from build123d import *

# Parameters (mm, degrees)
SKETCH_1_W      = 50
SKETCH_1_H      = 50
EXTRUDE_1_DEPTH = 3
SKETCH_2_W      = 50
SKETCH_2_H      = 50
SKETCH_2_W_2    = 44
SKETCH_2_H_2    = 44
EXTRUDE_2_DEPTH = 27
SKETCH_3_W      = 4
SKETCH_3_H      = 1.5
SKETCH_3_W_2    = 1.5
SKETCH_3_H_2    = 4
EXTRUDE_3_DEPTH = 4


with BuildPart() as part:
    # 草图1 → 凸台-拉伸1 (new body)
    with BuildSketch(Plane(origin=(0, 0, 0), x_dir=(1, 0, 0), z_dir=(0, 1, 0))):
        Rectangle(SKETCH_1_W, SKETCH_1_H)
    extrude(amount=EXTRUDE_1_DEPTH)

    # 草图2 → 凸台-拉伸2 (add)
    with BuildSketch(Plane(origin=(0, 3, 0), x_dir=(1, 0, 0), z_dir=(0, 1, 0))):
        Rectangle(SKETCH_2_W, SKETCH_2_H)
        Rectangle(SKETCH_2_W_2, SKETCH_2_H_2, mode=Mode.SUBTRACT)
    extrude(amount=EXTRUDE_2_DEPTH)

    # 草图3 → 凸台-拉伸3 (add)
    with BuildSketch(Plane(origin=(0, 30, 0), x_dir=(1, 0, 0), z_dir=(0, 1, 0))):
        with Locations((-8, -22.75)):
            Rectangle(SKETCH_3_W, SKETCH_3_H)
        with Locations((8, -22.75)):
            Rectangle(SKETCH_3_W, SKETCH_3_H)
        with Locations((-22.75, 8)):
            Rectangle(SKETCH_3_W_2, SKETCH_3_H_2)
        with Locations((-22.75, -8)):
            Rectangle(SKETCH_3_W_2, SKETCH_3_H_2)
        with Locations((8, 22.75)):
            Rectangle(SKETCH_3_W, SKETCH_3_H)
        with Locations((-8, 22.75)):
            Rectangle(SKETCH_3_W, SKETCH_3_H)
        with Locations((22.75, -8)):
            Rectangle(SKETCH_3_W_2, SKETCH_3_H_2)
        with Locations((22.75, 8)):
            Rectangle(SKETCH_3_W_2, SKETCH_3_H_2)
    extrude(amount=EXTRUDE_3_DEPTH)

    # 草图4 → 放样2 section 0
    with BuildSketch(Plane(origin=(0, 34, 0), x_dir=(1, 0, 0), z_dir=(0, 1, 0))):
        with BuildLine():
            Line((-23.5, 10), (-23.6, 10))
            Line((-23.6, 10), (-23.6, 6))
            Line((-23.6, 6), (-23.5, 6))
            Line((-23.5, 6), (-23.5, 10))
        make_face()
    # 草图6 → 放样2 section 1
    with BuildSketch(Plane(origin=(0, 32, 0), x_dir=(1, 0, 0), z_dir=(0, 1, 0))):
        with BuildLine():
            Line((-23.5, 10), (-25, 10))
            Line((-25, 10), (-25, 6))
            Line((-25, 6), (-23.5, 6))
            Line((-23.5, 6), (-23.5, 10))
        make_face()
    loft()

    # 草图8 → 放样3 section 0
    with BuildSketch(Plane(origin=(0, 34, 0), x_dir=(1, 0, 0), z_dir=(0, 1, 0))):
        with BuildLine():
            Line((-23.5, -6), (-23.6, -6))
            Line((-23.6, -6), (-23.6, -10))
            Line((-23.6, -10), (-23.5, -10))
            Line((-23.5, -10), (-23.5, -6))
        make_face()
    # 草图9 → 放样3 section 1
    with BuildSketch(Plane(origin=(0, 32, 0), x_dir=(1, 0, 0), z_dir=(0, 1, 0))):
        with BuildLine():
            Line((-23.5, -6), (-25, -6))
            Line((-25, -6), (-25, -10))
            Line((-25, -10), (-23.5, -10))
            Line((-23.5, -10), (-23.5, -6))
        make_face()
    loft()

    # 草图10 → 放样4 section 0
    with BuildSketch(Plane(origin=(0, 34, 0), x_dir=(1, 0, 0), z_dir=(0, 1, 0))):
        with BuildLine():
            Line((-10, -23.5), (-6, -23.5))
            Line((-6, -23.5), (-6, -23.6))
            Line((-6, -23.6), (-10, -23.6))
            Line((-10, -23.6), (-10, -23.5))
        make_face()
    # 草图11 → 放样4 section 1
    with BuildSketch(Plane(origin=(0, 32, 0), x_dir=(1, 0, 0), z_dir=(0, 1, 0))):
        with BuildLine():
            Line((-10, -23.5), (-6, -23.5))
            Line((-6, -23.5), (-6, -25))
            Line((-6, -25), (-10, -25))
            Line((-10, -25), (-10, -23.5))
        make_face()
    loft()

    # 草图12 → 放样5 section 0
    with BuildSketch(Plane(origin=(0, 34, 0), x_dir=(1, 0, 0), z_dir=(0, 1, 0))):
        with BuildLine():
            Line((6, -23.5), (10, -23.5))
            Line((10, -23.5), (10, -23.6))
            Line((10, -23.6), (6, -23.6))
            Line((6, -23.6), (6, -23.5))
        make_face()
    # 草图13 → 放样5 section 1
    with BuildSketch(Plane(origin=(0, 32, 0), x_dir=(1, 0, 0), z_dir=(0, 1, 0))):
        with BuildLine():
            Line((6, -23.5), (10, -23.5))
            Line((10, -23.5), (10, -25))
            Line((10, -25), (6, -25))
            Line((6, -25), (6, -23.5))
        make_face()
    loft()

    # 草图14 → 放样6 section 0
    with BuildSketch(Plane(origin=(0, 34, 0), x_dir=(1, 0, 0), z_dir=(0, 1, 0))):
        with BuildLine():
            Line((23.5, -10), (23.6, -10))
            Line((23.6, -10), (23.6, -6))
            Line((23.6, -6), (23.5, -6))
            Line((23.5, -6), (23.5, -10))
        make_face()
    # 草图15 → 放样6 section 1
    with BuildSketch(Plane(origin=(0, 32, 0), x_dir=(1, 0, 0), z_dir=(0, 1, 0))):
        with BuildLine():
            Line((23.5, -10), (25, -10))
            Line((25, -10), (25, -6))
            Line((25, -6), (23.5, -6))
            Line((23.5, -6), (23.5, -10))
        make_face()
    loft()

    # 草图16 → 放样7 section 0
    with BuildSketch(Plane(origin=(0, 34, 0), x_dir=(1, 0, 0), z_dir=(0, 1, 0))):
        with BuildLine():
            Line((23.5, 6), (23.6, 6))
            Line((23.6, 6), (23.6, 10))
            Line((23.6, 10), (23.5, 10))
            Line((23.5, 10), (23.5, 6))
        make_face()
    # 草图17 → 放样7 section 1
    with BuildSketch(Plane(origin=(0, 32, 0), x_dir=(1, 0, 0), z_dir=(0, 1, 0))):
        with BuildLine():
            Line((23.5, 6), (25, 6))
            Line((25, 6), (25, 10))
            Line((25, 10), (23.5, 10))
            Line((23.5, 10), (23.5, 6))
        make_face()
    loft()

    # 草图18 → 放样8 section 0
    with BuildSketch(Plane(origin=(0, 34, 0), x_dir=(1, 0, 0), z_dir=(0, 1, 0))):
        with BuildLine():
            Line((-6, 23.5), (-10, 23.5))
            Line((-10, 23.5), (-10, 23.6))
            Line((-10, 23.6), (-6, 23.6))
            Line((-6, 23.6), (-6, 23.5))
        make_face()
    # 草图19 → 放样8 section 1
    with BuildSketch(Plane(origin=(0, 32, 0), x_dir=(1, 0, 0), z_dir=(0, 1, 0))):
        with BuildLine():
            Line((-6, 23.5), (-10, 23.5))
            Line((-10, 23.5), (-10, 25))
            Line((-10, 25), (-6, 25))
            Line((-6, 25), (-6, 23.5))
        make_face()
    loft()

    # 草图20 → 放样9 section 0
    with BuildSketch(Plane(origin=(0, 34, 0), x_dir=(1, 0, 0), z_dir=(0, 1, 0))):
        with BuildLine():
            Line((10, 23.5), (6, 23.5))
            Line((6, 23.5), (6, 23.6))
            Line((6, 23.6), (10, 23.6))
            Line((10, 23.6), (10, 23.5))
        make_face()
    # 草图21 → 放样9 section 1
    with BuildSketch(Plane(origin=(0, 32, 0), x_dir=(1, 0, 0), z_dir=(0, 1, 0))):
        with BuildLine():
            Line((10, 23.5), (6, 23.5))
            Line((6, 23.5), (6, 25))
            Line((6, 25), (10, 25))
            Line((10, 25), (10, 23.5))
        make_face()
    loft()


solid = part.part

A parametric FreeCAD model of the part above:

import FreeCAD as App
import Part
import Sketcher

V = App.Vector
Q = App.Units.Quantity


def add_polygon(sketch, points):
    """Adds a closed chain of lines whose ends are joined by coincident constraints."""
    first, n = sketch.GeometryCount, len(points)
    for a, b in zip(points, points[1:] + points[:1]):
        sketch.addGeometry(Part.LineSegment(App.Vector(*a, 0), App.Vector(*b, 0)), False)
    for i in range(n):
        sketch.addConstraint(Sketcher.Constraint("Coincident", first + i, 2, first + (i + 1) % n, 1))

doc = App.newDocument("Part")
body = doc.addObject("PartDesign::Body", "Body")

sketch1 = body.newObject("Sketcher::SketchObject", "Sketch")
sketch1.AttachmentSupport = (doc.getObject("XZ_Plane"), [""])
sketch1.MapMode = "FlatFace"
add_polygon(sketch1, [(-25, -25), (-25, 25), (25, 25), (25, -25)])
sketch1.addConstraint([
    Sketcher.Constraint("Vertical", 0),
    Sketcher.Constraint("Horizontal", 1),
    Sketcher.Constraint("Vertical", 2),
    Sketcher.Constraint("Horizontal", 3),
    Sketcher.Constraint("Symmetric", 0, 2, 2, 2, -1, 1),
    Sketcher.Constraint("Equal", 3, 0),
    Sketcher.Constraint("DistanceX", 1, 1, 1, 2, Q("50 mm")),
])
pad1 = body.newObject("PartDesign::Pad", "Pad")
pad1.Profile = sketch1
pad1.Length = 3
pad1.Reversed = True

sketch2 = body.newObject("Sketcher::SketchObject", "Sketch001")
sketch2.AttachmentSupport = (doc.getObject("XZ_Plane"), [""])
sketch2.MapMode = "FlatFace"
sketch2.AttachmentOffset = App.Placement(V(0, 0, -3), App.Rotation())
add_polygon(sketch2, [(-25, -25), (-25, 25), (25, 25), (25, -25)])
add_polygon(sketch2, [(22, 22), (-22, 22), (-22, -22), (22, -22)])
sketch2.addConstraint([
    Sketcher.Constraint("Vertical", 0),
    Sketcher.Constraint("Horizontal", 1),
    Sketcher.Constraint("Vertical", 2),
    Sketcher.Constraint("Horizontal", 3),
    Sketcher.Constraint("Horizontal", 4),
    Sketcher.Constraint("Vertical", 5),
    Sketcher.Constraint("Horizontal", 6),
    Sketcher.Constraint("Vertical", 7),
    Sketcher.Constraint("Symmetric", 0, 2, 2, 2, -1, 1),
    Sketcher.Constraint("Symmetric", 4, 2, 6, 2, -1, 1),
    Sketcher.Constraint("Equal", 3, 0),
    Sketcher.Constraint("Equal", 6, 5),
    Sketcher.Constraint("DistanceX", 1, 1, 1, 2, Q("50 mm")),
    Sketcher.Constraint("DistanceX", 4, 2, 4, 1, Q("44 mm")),
])
pad2 = body.newObject("PartDesign::Pad", "Pad001")
pad2.Profile = sketch2
pad2.Length = 27
pad2.Reversed = True

sketch3 = body.newObject("Sketcher::SketchObject", "Sketch002")
sketch3.AttachmentSupport = (doc.getObject("XZ_Plane"), [""])
sketch3.MapMode = "FlatFace"
sketch3.AttachmentOffset = App.Placement(V(0, 0, -30), App.Rotation())
add_polygon(sketch3, [(-10, 22), (-10, 23.5), (-6, 23.5), (-6, 22)])
add_polygon(sketch3, [(6, 22), (6, 23.5), (10, 23.5), (10, 22)])
add_polygon(sketch3, [(-23.5, -10), (-23.5, -6), (-22, -6), (-22, -10)])
add_polygon(sketch3, [(-23.5, 6), (-23.5, 10), (-22, 10), (-22, 6)])
add_polygon(sketch3, [(6, -23.5), (6, -22), (10, -22), (10, -23.5)])
add_polygon(sketch3, [(-10, -23.5), (-10, -22), (-6, -22), (-6, -23.5)])
add_polygon(sketch3, [(22, 6), (22, 10), (23.5, 10), (23.5, 6)])
add_polygon(sketch3, [(22, -10), (22, -6), (23.5, -6), (23.5, -10)])
sketch3.addConstraint([
    Sketcher.Constraint("Vertical", 0),
    Sketcher.Constraint("Horizontal", 1),
    Sketcher.Constraint("Vertical", 2),
    Sketcher.Constraint("Horizontal", 3),
    Sketcher.Constraint("Vertical", 4),
    Sketcher.Constraint("Horizontal", 5),
    Sketcher.Constraint("Vertical", 6),
    Sketcher.Constraint("Horizontal", 7),
    Sketcher.Constraint("Vertical", 8),
    Sketcher.Constraint("Horizontal", 9),
    Sketcher.Constraint("Vertical", 10),
    Sketcher.Constraint("Horizontal", 11),
    Sketcher.Constraint("Vertical", 12),
    Sketcher.Constraint("Horizontal", 13),
    Sketcher.Constraint("Vertical", 14),
    Sketcher.Constraint("Horizontal", 15),
    Sketcher.Constraint("Vertical", 16),
    Sketcher.Constraint("Horizontal", 17),
    Sketcher.Constraint("Vertical", 18),
    Sketcher.Constraint("Horizontal", 19),
    Sketcher.Constraint("Vertical", 20),
    Sketcher.Constraint("Horizontal", 21),
    Sketcher.Constraint("Vertical", 22),
    Sketcher.Constraint("Horizontal", 23),
    Sketcher.Constraint("Vertical", 24),
    Sketcher.Constraint("Horizontal", 25),
    Sketcher.Constraint("Vertical", 26),
    Sketcher.Constraint("Horizontal", 27),
    Sketcher.Constraint("Vertical", 28),
    Sketcher.Constraint("Horizontal", 29),
    Sketcher.Constraint("Vertical", 30),
    Sketcher.Constraint("Horizontal", 31),
    Sketcher.Constraint("Symmetric", 2, 2, 16, 2, -1, 1),
    Sketcher.Constraint("Symmetric", 0, 2, 18, 2, -1, 1),
    Sketcher.Constraint("Symmetric", 6, 2, 20, 2, -1, 1),
    Sketcher.Constraint("Symmetric", 4, 2, 22, 2, -1, 1),
    Sketcher.Constraint("Symmetric", 10, 2, 24, 2, -1, 1),
    Sketcher.Constraint("Symmetric", 8, 2, 26, 2, -1, 1),
    Sketcher.Constraint("Symmetric", 14, 2, 28, 2, -1, 1),
    Sketcher.Constraint("Symmetric", 12, 2, 30, 2, -1, 1),
    Sketcher.Constraint("Symmetric", 1, 2, 4, 2, -2),
    Sketcher.Constraint("Symmetric", 3, 2, 6, 2, -2),
    Sketcher.Constraint("Symmetric", 13, 2, 24, 2, -2),
    Sketcher.Constraint("Symmetric", 15, 2, 26, 2, -2),
    Sketcher.Constraint("Equal", 31, 0),
    Sketcher.Constraint("Equal", 23, 8),
    Sketcher.Constraint("DistanceX", 1, 1, 1, 2, Q("4 mm")),
    Sketcher.Constraint("DistanceX", 9, 1, 9, 2, Q("1.5 mm")),
    Sketcher.Constraint("DistanceX", 0, 2, -1, 1, Q("10 mm")),
    Sketcher.Constraint("DistanceY", -1, 1, 2, 2, Q("22 mm")),
    Sketcher.Constraint("DistanceY", 8, 2, -1, 1, Q("6 mm")),
    Sketcher.Constraint("DistanceX", 9, 2, -1, 1, Q("22 mm")),
])
pad3 = body.newObject("PartDesign::Pad", "Pad002")
pad3.Profile = sketch3
pad3.Length = 4
pad3.Reversed = True

sketch4 = body.newObject("Sketcher::SketchObject", "Sketch003")
sketch4.AttachmentSupport = (doc.getObject("XZ_Plane"), [""])
sketch4.MapMode = "FlatFace"
sketch4.AttachmentOffset = App.Placement(V(0, 0, -34), App.Rotation())
add_polygon(sketch4, [(-23.5, -10), (-23.6, -10), (-23.6, -6), (-23.5, -6)])
sketch4.addConstraint([
    Sketcher.Constraint("Horizontal", 0),
    Sketcher.Constraint("Vertical", 1),
    Sketcher.Constraint("Horizontal", 2),
    Sketcher.Constraint("Vertical", 3),
    Sketcher.Constraint("DistanceY", 1, 1, 1, 2, Q("4 mm")),
    Sketcher.Constraint("DistanceX", 0, 2, 0, 1, Q("0.1 mm")),
    Sketcher.Constraint("DistanceY", 0, 2, -1, 1, Q("10 mm")),
    Sketcher.Constraint("DistanceX", 0, 2, -1, 1, Q("23.6 mm")),
])

sketch5 = body.newObject("Sketcher::SketchObject", "Sketch004")
sketch5.AttachmentSupport = (doc.getObject("XZ_Plane"), [""])
sketch5.MapMode = "FlatFace"
sketch5.AttachmentOffset = App.Placement(V(0, 0, -32), App.Rotation())
add_polygon(sketch5, [(-23.5, -10), (-25, -10), (-25, -6), (-23.5, -6)])
sketch5.addConstraint([
    Sketcher.Constraint("Horizontal", 0),
    Sketcher.Constraint("Vertical", 1),
    Sketcher.Constraint("Horizontal", 2),
    Sketcher.Constraint("Vertical", 3),
    Sketcher.Constraint("DistanceY", 1, 1, 1, 2, Q("4 mm")),
    Sketcher.Constraint("DistanceX", 0, 2, 0, 1, Q("1.5 mm")),
    Sketcher.Constraint("DistanceX", 0, 2, -1, 1, Q("25 mm")),
    Sketcher.Constraint("DistanceY", 0, 2, -1, 1, Q("10 mm")),
])

additiveloft = body.newObject("PartDesign::AdditiveLoft", "AdditiveLoft")
additiveloft.Profile = sketch4
additiveloft.Sections = [sketch5]

sketch6 = body.newObject("Sketcher::SketchObject", "Sketch005")
sketch6.AttachmentSupport = (doc.getObject("XZ_Plane"), [""])
sketch6.MapMode = "FlatFace"
sketch6.AttachmentOffset = App.Placement(V(0, 0, -34), App.Rotation())
add_polygon(sketch6, [(-23.5, 6), (-23.6, 6), (-23.6, 10), (-23.5, 10)])
sketch6.addConstraint([
    Sketcher.Constraint("Horizontal", 0),
    Sketcher.Constraint("Vertical", 1),
    Sketcher.Constraint("Horizontal", 2),
    Sketcher.Constraint("Vertical", 3),
    Sketcher.Constraint("DistanceY", 1, 1, 1, 2, Q("4 mm")),
    Sketcher.Constraint("DistanceX", 0, 2, 0, 1, Q("0.1 mm")),
    Sketcher.Constraint("DistanceY", -1, 1, 0, 2, Q("6 mm")),
    Sketcher.Constraint("DistanceX", 0, 2, -1, 1, Q("23.6 mm")),
])

sketch7 = body.newObject("Sketcher::SketchObject", "Sketch006")
sketch7.AttachmentSupport = (doc.getObject("XZ_Plane"), [""])
sketch7.MapMode = "FlatFace"
sketch7.AttachmentOffset = App.Placement(V(0, 0, -32), App.Rotation())
add_polygon(sketch7, [(-23.5, 6), (-25, 6), (-25, 10), (-23.5, 10)])
sketch7.addConstraint([
    Sketcher.Constraint("Horizontal", 0),
    Sketcher.Constraint("Vertical", 1),
    Sketcher.Constraint("Horizontal", 2),
    Sketcher.Constraint("Vertical", 3),
    Sketcher.Constraint("DistanceY", 1, 1, 1, 2, Q("4 mm")),
    Sketcher.Constraint("DistanceX", 0, 2, 0, 1, Q("1.5 mm")),
    Sketcher.Constraint("DistanceX", 0, 2, -1, 1, Q("25 mm")),
    Sketcher.Constraint("DistanceY", -1, 1, 0, 2, Q("6 mm")),
])

additiveloft2 = body.newObject("PartDesign::AdditiveLoft", "AdditiveLoft001")
additiveloft2.Profile = sketch6
additiveloft2.Sections = [sketch7]

sketch8 = body.newObject("Sketcher::SketchObject", "Sketch007")
sketch8.AttachmentSupport = (doc.getObject("XZ_Plane"), [""])
sketch8.MapMode = "FlatFace"
sketch8.AttachmentOffset = App.Placement(V(0, 0, -34), App.Rotation())
add_polygon(sketch8, [(-6, 23.5), (-10, 23.5), (-10, 23.6), (-6, 23.6)])
sketch8.addConstraint([
    Sketcher.Constraint("Horizontal", 0),
    Sketcher.Constraint("Vertical", 1),
    Sketcher.Constraint("Horizontal", 2),
    Sketcher.Constraint("Vertical", 3),
    Sketcher.Constraint("DistanceX", 0, 2, 0, 1, Q("4 mm")),
    Sketcher.Constraint("DistanceY", 1, 1, 1, 2, Q("0.1 mm")),
    Sketcher.Constraint("DistanceX", 0, 2, -1, 1, Q("10 mm")),
    Sketcher.Constraint("DistanceY", -1, 1, 0, 2, Q("23.5 mm")),
])

sketch9 = body.newObject("Sketcher::SketchObject", "Sketch008")
sketch9.AttachmentSupport = (doc.getObject("XZ_Plane"), [""])
sketch9.MapMode = "FlatFace"
sketch9.AttachmentOffset = App.Placement(V(0, 0, -32), App.Rotation())
add_polygon(sketch9, [(-6, 23.5), (-10, 23.5), (-10, 25), (-6, 25)])
sketch9.addConstraint([
    Sketcher.Constraint("Horizontal", 0),
    Sketcher.Constraint("Vertical", 1),
    Sketcher.Constraint("Horizontal", 2),
    Sketcher.Constraint("Vertical", 3),
    Sketcher.Constraint("DistanceX", 0, 2, 0, 1, Q("4 mm")),
    Sketcher.Constraint("DistanceY", 1, 1, 1, 2, Q("1.5 mm")),
    Sketcher.Constraint("DistanceX", 0, 2, -1, 1, Q("10 mm")),
    Sketcher.Constraint("DistanceY", -1, 1, 1, 2, Q("25 mm")),
])

additiveloft3 = body.newObject("PartDesign::AdditiveLoft", "AdditiveLoft002")
additiveloft3.Profile = sketch8
additiveloft3.Sections = [sketch9]

sketch10 = body.newObject("Sketcher::SketchObject", "Sketch009")
sketch10.AttachmentSupport = (doc.getObject("XZ_Plane"), [""])
sketch10.MapMode = "FlatFace"
sketch10.AttachmentOffset = App.Placement(V(0, 0, -34), App.Rotation())
add_polygon(sketch10, [(10, 23.5), (6, 23.5), (6, 23.6), (10, 23.6)])
sketch10.addConstraint([
    Sketcher.Constraint("Horizontal", 0),
    Sketcher.Constraint("Vertical", 1),
    Sketcher.Constraint("Horizontal", 2),
    Sketcher.Constraint("Vertical", 3),
    Sketcher.Constraint("DistanceX", 0, 2, 0, 1, Q("4 mm")),
    Sketcher.Constraint("DistanceY", 1, 1, 1, 2, Q("0.1 mm")),
    Sketcher.Constraint("DistanceX", -1, 1, 0, 2, Q("6 mm")),
    Sketcher.Constraint("DistanceY", -1, 1, 0, 2, Q("23.5 mm")),
])

sketch11 = body.newObject("Sketcher::SketchObject", "Sketch010")
sketch11.AttachmentSupport = (doc.getObject("XZ_Plane"), [""])
sketch11.MapMode = "FlatFace"
sketch11.AttachmentOffset = App.Placement(V(0, 0, -32), App.Rotation())
add_polygon(sketch11, [(10, 23.5), (6, 23.5), (6, 25), (10, 25)])
sketch11.addConstraint([
    Sketcher.Constraint("Horizontal", 0),
    Sketcher.Constraint("Vertical", 1),
    Sketcher.Constraint("Horizontal", 2),
    Sketcher.Constraint("Vertical", 3),
    Sketcher.Constraint("DistanceX", 0, 2, 0, 1, Q("4 mm")),
    Sketcher.Constraint("DistanceY", 1, 1, 1, 2, Q("1.5 mm")),
    Sketcher.Constraint("DistanceX", -1, 1, 0, 2, Q("6 mm")),
    Sketcher.Constraint("DistanceY", -1, 1, 1, 2, Q("25 mm")),
])

additiveloft4 = body.newObject("PartDesign::AdditiveLoft", "AdditiveLoft003")
additiveloft4.Profile = sketch10
additiveloft4.Sections = [sketch11]

sketch12 = body.newObject("Sketcher::SketchObject", "Sketch011")
sketch12.AttachmentSupport = (doc.getObject("XZ_Plane"), [""])
sketch12.MapMode = "FlatFace"
sketch12.AttachmentOffset = App.Placement(V(0, 0, -34), App.Rotation())
add_polygon(sketch12, [(23.5, 10), (23.6, 10), (23.6, 6), (23.5, 6)])
sketch12.addConstraint([
    Sketcher.Constraint("Horizontal", 0),
    Sketcher.Constraint("Vertical", 1),
    Sketcher.Constraint("Horizontal", 2),
    Sketcher.Constraint("Vertical", 3),
    Sketcher.Constraint("DistanceY", 1, 2, 1, 1, Q("4 mm")),
    Sketcher.Constraint("DistanceX", 0, 1, 0, 2, Q("0.1 mm")),
    Sketcher.Constraint("DistanceY", -1, 1, 0, 2, Q("10 mm")),
    Sketcher.Constraint("DistanceX", -1, 1, 0, 2, Q("23.6 mm")),
])

sketch13 = body.newObject("Sketcher::SketchObject", "Sketch012")
sketch13.AttachmentSupport = (doc.getObject("XZ_Plane"), [""])
sketch13.MapMode = "FlatFace"
sketch13.AttachmentOffset = App.Placement(V(0, 0, -32), App.Rotation())
add_polygon(sketch13, [(23.5, 10), (25, 10), (25, 6), (23.5, 6)])
sketch13.addConstraint([
    Sketcher.Constraint("Horizontal", 0),
    Sketcher.Constraint("Vertical", 1),
    Sketcher.Constraint("Horizontal", 2),
    Sketcher.Constraint("Vertical", 3),
    Sketcher.Constraint("DistanceY", 1, 2, 1, 1, Q("4 mm")),
    Sketcher.Constraint("DistanceX", 0, 1, 0, 2, Q("1.5 mm")),
    Sketcher.Constraint("DistanceX", -1, 1, 0, 2, Q("25 mm")),
    Sketcher.Constraint("DistanceY", -1, 1, 0, 2, Q("10 mm")),
])

additiveloft5 = body.newObject("PartDesign::AdditiveLoft", "AdditiveLoft004")
additiveloft5.Profile = sketch12
additiveloft5.Sections = [sketch13]

sketch14 = body.newObject("Sketcher::SketchObject", "Sketch013")
sketch14.AttachmentSupport = (doc.getObject("XZ_Plane"), [""])
sketch14.MapMode = "FlatFace"
sketch14.AttachmentOffset = App.Placement(V(0, 0, -34), App.Rotation())
add_polygon(sketch14, [(23.5, -6), (23.6, -6), (23.6, -10), (23.5, -10)])
sketch14.addConstraint([
    Sketcher.Constraint("Horizontal", 0),
    Sketcher.Constraint("Vertical", 1),
    Sketcher.Constraint("Horizontal", 2),
    Sketcher.Constraint("Vertical", 3),
    Sketcher.Constraint("DistanceY", 1, 2, 1, 1, Q("4 mm")),
    Sketcher.Constraint("DistanceX", 0, 1, 0, 2, Q("0.1 mm")),
    Sketcher.Constraint("DistanceY", 0, 2, -1, 1, Q("6 mm")),
    Sketcher.Constraint("DistanceX", -1, 1, 0, 2, Q("23.6 mm")),
])

sketch15 = body.newObject("Sketcher::SketchObject", "Sketch014")
sketch15.AttachmentSupport = (doc.getObject("XZ_Plane"), [""])
sketch15.MapMode = "FlatFace"
sketch15.AttachmentOffset = App.Placement(V(0, 0, -32), App.Rotation())
add_polygon(sketch15, [(23.5, -6), (25, -6), (25, -10), (23.5, -10)])
sketch15.addConstraint([
    Sketcher.Constraint("Horizontal", 0),
    Sketcher.Constraint("Vertical", 1),
    Sketcher.Constraint("Horizontal", 2),
    Sketcher.Constraint("Vertical", 3),
    Sketcher.Constraint("DistanceY", 1, 2, 1, 1, Q("4 mm")),
    Sketcher.Constraint("DistanceX", 0, 1, 0, 2, Q("1.5 mm")),
    Sketcher.Constraint("DistanceX", -1, 1, 0, 2, Q("25 mm")),
    Sketcher.Constraint("DistanceY", 0, 2, -1, 1, Q("6 mm")),
])

additiveloft6 = body.newObject("PartDesign::AdditiveLoft", "AdditiveLoft005")
additiveloft6.Profile = sketch14
additiveloft6.Sections = [sketch15]

sketch16 = body.newObject("Sketcher::SketchObject", "Sketch015")
sketch16.AttachmentSupport = (doc.getObject("XZ_Plane"), [""])
sketch16.MapMode = "FlatFace"
sketch16.AttachmentOffset = App.Placement(V(0, 0, -34), App.Rotation())
add_polygon(sketch16, [(-10, -23.5), (-6, -23.5), (-6, -23.6), (-10, -23.6)])
sketch16.addConstraint([
    Sketcher.Constraint("Horizontal", 0),
    Sketcher.Constraint("Vertical", 1),
    Sketcher.Constraint("Horizontal", 2),
    Sketcher.Constraint("Vertical", 3),
    Sketcher.Constraint("DistanceX", 0, 1, 0, 2, Q("4 mm")),
    Sketcher.Constraint("DistanceY", 1, 2, 1, 1, Q("0.1 mm")),
    Sketcher.Constraint("DistanceX", 0, 2, -1, 1, Q("6 mm")),
    Sketcher.Constraint("DistanceY", 0, 2, -1, 1, Q("23.5 mm")),
])

sketch17 = body.newObject("Sketcher::SketchObject", "Sketch016")
sketch17.AttachmentSupport = (doc.getObject("XZ_Plane"), [""])
sketch17.MapMode = "FlatFace"
sketch17.AttachmentOffset = App.Placement(V(0, 0, -32), App.Rotation())
add_polygon(sketch17, [(-10, -23.5), (-6, -23.5), (-6, -25), (-10, -25)])
sketch17.addConstraint([
    Sketcher.Constraint("Horizontal", 0),
    Sketcher.Constraint("Vertical", 1),
    Sketcher.Constraint("Horizontal", 2),
    Sketcher.Constraint("Vertical", 3),
    Sketcher.Constraint("DistanceX", 0, 1, 0, 2, Q("4 mm")),
    Sketcher.Constraint("DistanceY", 1, 2, 1, 1, Q("1.5 mm")),
    Sketcher.Constraint("DistanceX", 0, 2, -1, 1, Q("6 mm")),
    Sketcher.Constraint("DistanceY", 1, 2, -1, 1, Q("25 mm")),
])

additiveloft7 = body.newObject("PartDesign::AdditiveLoft", "AdditiveLoft006")
additiveloft7.Profile = sketch16
additiveloft7.Sections = [sketch17]

sketch18 = body.newObject("Sketcher::SketchObject", "Sketch017")
sketch18.AttachmentSupport = (doc.getObject("XZ_Plane"), [""])
sketch18.MapMode = "FlatFace"
sketch18.AttachmentOffset = App.Placement(V(0, 0, -34), App.Rotation())
add_polygon(sketch18, [(6, -23.5), (10, -23.5), (10, -23.6), (6, -23.6)])
sketch18.addConstraint([
    Sketcher.Constraint("Horizontal", 0),
    Sketcher.Constraint("Vertical", 1),
    Sketcher.Constraint("Horizontal", 2),
    Sketcher.Constraint("Vertical", 3),
    Sketcher.Constraint("DistanceX", 0, 1, 0, 2, Q("4 mm")),
    Sketcher.Constraint("DistanceY", 1, 2, 1, 1, Q("0.1 mm")),
    Sketcher.Constraint("DistanceX", -1, 1, 0, 2, Q("10 mm")),
    Sketcher.Constraint("DistanceY", 0, 2, -1, 1, Q("23.5 mm")),
])

sketch19 = body.newObject("Sketcher::SketchObject", "Sketch018")
sketch19.AttachmentSupport = (doc.getObject("XZ_Plane"), [""])
sketch19.MapMode = "FlatFace"
sketch19.AttachmentOffset = App.Placement(V(0, 0, -32), App.Rotation())
add_polygon(sketch19, [(6, -23.5), (10, -23.5), (10, -25), (6, -25)])
sketch19.addConstraint([
    Sketcher.Constraint("Horizontal", 0),
    Sketcher.Constraint("Vertical", 1),
    Sketcher.Constraint("Horizontal", 2),
    Sketcher.Constraint("Vertical", 3),
    Sketcher.Constraint("DistanceX", 0, 1, 0, 2, Q("4 mm")),
    Sketcher.Constraint("DistanceY", 1, 2, 1, 1, Q("1.5 mm")),
    Sketcher.Constraint("DistanceX", -1, 1, 0, 2, Q("10 mm")),
    Sketcher.Constraint("DistanceY", 1, 2, -1, 1, Q("25 mm")),
])

additiveloft8 = body.newObject("PartDesign::AdditiveLoft", "AdditiveLoft007")
additiveloft8.Profile = sketch18
additiveloft8.Sections = [sketch19]

doc.recompute()
